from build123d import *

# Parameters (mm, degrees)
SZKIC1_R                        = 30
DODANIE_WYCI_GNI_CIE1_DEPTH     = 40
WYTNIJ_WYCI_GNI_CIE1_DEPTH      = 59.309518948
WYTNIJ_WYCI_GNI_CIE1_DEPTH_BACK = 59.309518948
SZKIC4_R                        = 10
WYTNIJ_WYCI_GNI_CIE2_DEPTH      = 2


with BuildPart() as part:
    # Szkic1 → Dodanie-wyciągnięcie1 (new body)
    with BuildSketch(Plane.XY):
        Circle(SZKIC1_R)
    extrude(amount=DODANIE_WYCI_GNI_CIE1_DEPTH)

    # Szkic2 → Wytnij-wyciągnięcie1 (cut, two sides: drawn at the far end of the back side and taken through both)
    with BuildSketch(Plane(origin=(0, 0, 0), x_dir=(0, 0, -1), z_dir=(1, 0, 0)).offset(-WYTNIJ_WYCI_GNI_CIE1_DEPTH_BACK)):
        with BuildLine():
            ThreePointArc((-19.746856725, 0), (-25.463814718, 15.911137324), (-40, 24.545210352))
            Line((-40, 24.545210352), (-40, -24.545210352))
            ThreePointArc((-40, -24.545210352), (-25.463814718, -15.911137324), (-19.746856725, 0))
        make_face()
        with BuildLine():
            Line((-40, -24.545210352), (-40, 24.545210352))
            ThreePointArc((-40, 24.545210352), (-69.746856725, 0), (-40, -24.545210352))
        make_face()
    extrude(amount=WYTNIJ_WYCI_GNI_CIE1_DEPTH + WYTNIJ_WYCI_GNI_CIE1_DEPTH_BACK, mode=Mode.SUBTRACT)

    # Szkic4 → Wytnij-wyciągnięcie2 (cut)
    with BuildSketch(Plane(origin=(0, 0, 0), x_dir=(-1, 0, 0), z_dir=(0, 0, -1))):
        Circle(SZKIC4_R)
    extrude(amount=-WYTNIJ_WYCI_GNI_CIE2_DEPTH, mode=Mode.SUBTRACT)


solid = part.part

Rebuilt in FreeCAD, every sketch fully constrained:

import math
import FreeCAD as App
import Part
import Sketcher

V = App.Vector

doc = App.newDocument("Part")
body = doc.addObject("PartDesign::Body", "Body")

# Sketch on XY plane
sketch1 = body.newObject("Sketcher::SketchObject", "Sketch")
sketch1.AttachmentSupport = (doc.getObject("XY_Plane"), [""])
sketch1.MapMode = "FlatFace"
sketch1.addGeometry(Part.Circle(V(0, 0, 0), V(0, 0, 1), 30), False)
sketch1.addConstraint([
    Sketcher.Constraint("Coincident", 0, 3, -1, 1),
    Sketcher.Constraint("Diameter", 0, 60.0),
])
pad1 = body.newObject("PartDesign::Pad", "Pad")
pad1.Profile = sketch1
pad1.Length = 40

# Sketch on YZ plane
sketch2 = body.newObject("Sketcher::SketchObject", "Sketch001")
sketch2.AttachmentSupport = (doc.getObject("YZ_Plane"), [""])
sketch2.MapMode = "FlatFace"
sketch2.addGeometry([
    Part.ArcOfCircle(Part.Circle(V(0, 45, 0), V(0, 0, 1), 25), math.radians(-90), math.radians(-11)),
    Part.ArcOfCircle(Part.Circle(V(0, 45, 0), V(0, 0, 1), 25), math.radians(-11), math.radians(191)),
    Part.ArcOfCircle(Part.Circle(V(0, 45, 0), V(0, 0, 1), 25), math.radians(-169), math.radians(-90)),
], False)
sketch2.addConstraint([
    Sketcher.Constraint("Tangent", 0, 2, 1, 1),
    Sketcher.Constraint("Tangent", 1, 2, 2, 1),
    Sketcher.Constraint("Tangent", 2, 2, 0, 1),
    Sketcher.Constraint("Symmetric", 0, 2, 1, 2, -2),
    Sketcher.Constraint("PointOnObject", 2, 2, -2),
    Sketcher.Constraint("Radius", 0, 25.0),
    Sketcher.Constraint("DistanceY", -1, 1, 0, 2, 40.0),
    Sketcher.Constraint("DistanceX", -1, 1, 0, 2, 24.54521),
])
pocket1 = body.newObject("PartDesign::Pocket", "Pocket")
pocket1.Profile = sketch2
pocket1.Type = "ThroughAll"
pocket1.Midplane = True

# Sketch on XY plane
sketch3 = body.newObject("Sketcher::SketchObject", "Sketch002")
sketch3.AttachmentSupport = (doc.getObject("XY_Plane"), [""])
sketch3.MapMode = "FlatFace"
sketch3.addGeometry(Part.Circle(V(0, 0, 0), V(0, 0, 1), 10), False)
sketch3.addConstraint([
    Sketcher.Constraint("Coincident", 0, 3, -1, 1),
    Sketcher.Constraint("Diameter", 0, 20.0),
])
pocket2 = body.newObject("PartDesign::Pocket", "Pocket001")
pocket2.Profile = sketch3
pocket2.Length = 2
pocket2.Reversed = True

doc.recompute()
